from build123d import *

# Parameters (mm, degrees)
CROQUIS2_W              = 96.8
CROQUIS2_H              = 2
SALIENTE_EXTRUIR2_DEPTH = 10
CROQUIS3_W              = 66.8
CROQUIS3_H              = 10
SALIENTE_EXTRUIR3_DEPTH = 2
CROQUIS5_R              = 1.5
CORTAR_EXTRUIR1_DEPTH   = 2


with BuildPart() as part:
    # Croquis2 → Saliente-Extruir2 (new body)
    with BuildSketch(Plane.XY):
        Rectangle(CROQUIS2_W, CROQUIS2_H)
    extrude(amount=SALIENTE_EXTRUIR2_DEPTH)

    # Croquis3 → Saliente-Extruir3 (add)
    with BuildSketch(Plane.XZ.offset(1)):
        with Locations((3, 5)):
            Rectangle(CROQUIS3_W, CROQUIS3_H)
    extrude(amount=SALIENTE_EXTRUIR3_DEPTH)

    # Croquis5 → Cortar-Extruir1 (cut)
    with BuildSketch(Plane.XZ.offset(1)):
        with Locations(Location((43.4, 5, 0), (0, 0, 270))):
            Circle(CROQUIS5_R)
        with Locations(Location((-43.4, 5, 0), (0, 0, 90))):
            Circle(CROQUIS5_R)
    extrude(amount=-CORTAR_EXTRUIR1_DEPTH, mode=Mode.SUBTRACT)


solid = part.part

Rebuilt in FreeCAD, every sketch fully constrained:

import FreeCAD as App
import Part
import Sketcher
from FreeCAD import Vector

doc = App.newDocument("Part")
body = doc.addObject("PartDesign::Body", "Body")

# Sketch on XY plane
sketch1 = doc.addObject("Sketcher::SketchObject", "Sketch")
body.addObject(sketch1)
sketch1.AttachmentSupport = (doc.XY_Plane, [""])
sketch1.MapMode = "FlatFace"
sketch1.addGeometry([
    Part.LineSegment(Vector(-48.4, 1, 0), Vector(-48.4, -1, 0)),
    Part.LineSegment(Vector(-48.4, -1, 0), Vector(48.4, -1, 0)),
    Part.LineSegment(Vector(48.4, -1, 0), Vector(48.4, 1, 0)),
    Part.LineSegment(Vector(48.4, 1, 0), Vector(-48.4, 1, 0)),
], False)
sketch1.addConstraint([
    Sketcher.Constraint("Coincident", 0, 2, 1, 1),
    Sketcher.Constraint("Coincident", 1, 2, 2, 1),
    Sketcher.Constraint("Coincident", 2, 2, 3, 1),
    Sketcher.Constraint("Coincident", 3, 2, 0, 1),
    Sketcher.Constraint("Vertical", 0),
    Sketcher.Constraint("Horizontal", 1),
    Sketcher.Constraint("Vertical", 2),
    Sketcher.Constraint("Horizontal", 3),
    Sketcher.Constraint("Symmetric", 0, 2, 2, 2, -1, 1),
    Sketcher.Constraint("DistanceY", 0, 2, 0, 1, 2.0),
    Sketcher.Constraint("DistanceX", 1, 1, 1, 2, 96.8),
])
pad1 = doc.addObject("PartDesign::Pad", "Pad")
body.addObject(pad1)
pad1.Profile = sketch1
pad1.Length = 10

# Sketch on XZ plane
sketch2 = doc.addObject("Sketcher::SketchObject", "Sketch001")
body.addObject(sketch2)
sketch2.AttachmentSupport = (doc.XZ_Plane, [""])
sketch2.MapMode = "FlatFace"
sketch2.AttachmentOffset = App.Placement(Vector(0, 0, 1), App.Rotation())
sketch2.addGeometry([
    Part.LineSegment(Vector(-30.4, 10, 0), Vector(-30.4, 0, 0)),
    Part.LineSegment(Vector(-30.4, 0, 0), Vector(36.4, 0, 0)),
    Part.LineSegment(Vector(36.4, 0, 0), Vector(36.4, 10, 0)),
    Part.LineSegment(Vector(36.4, 10, 0), Vector(-30.4, 10, 0)),
], False)
sketch2.addConstraint([
    Sketcher.Constraint("Coincident", 0, 2, 1, 1),
    Sketcher.Constraint("Coincident", 1, 2, 2, 1),
    Sketcher.Constraint("Coincident", 2, 2, 3, 1),
    Sketcher.Constraint("Coincident", 3, 2, 0, 1),
    Sketcher.Constraint("Vertical", 0),
    Sketcher.Constraint("Horizontal", 1),
    Sketcher.Constraint("Vertical", 2),
    Sketcher.Constraint("Horizontal", 3),
    Sketcher.Constraint("PointOnObject", 0, 2, -1),
    Sketcher.Constraint("DistanceY", 0, 2, 0, 1, 10.0),
    Sketcher.Constraint("DistanceX", 1, 1, 1, 2, 66.8),
    Sketcher.Constraint("DistanceX", 0, 2, -1, 1, 30.4),
])
pad2 = doc.addObject("PartDesign::Pad", "Pad001")
body.addObject(pad2)
pad2.Profile = sketch2
pad2.Length = 2

# Sketch on XZ plane
sketch3 = doc.addObject("Sketcher::SketchObject", "Sketch002")
body.addObject(sketch3)
sketch3.AttachmentSupport = (doc.XZ_Plane, [""])
sketch3.MapMode = "FlatFace"
sketch3.AttachmentOffset = App.Placement(Vector(0, 0, 1), App.Rotation())
sketch3.addGeometry([
    Part.Circle(Vector(43.4, 5, 0), Vector(0, 0, 1), 1.5),
    Part.Circle(Vector(-43.4, 5, 0), Vector(0, 0, 1), 1.5),
], False)
sketch3.addConstraint([
    Sketcher.Constraint("Equal", 0, 1),
    Sketcher.Constraint("Symmetric", 0, 3, 1, 3, -2),
    Sketcher.Constraint("Diameter", 0, 3.0),
    Sketcher.Constraint("DistanceY", -1, 1, 0, 3, 5.0),
    Sketcher.Constraint("DistanceX", -1, 1, 0, 3, 43.4),
])
pocket1 = doc.addObject("PartDesign::Pocket", "Pocket")
body.addObject(pocket1)
pocket1.Profile = sketch3
pocket1.Length = 2

doc.recompute()
